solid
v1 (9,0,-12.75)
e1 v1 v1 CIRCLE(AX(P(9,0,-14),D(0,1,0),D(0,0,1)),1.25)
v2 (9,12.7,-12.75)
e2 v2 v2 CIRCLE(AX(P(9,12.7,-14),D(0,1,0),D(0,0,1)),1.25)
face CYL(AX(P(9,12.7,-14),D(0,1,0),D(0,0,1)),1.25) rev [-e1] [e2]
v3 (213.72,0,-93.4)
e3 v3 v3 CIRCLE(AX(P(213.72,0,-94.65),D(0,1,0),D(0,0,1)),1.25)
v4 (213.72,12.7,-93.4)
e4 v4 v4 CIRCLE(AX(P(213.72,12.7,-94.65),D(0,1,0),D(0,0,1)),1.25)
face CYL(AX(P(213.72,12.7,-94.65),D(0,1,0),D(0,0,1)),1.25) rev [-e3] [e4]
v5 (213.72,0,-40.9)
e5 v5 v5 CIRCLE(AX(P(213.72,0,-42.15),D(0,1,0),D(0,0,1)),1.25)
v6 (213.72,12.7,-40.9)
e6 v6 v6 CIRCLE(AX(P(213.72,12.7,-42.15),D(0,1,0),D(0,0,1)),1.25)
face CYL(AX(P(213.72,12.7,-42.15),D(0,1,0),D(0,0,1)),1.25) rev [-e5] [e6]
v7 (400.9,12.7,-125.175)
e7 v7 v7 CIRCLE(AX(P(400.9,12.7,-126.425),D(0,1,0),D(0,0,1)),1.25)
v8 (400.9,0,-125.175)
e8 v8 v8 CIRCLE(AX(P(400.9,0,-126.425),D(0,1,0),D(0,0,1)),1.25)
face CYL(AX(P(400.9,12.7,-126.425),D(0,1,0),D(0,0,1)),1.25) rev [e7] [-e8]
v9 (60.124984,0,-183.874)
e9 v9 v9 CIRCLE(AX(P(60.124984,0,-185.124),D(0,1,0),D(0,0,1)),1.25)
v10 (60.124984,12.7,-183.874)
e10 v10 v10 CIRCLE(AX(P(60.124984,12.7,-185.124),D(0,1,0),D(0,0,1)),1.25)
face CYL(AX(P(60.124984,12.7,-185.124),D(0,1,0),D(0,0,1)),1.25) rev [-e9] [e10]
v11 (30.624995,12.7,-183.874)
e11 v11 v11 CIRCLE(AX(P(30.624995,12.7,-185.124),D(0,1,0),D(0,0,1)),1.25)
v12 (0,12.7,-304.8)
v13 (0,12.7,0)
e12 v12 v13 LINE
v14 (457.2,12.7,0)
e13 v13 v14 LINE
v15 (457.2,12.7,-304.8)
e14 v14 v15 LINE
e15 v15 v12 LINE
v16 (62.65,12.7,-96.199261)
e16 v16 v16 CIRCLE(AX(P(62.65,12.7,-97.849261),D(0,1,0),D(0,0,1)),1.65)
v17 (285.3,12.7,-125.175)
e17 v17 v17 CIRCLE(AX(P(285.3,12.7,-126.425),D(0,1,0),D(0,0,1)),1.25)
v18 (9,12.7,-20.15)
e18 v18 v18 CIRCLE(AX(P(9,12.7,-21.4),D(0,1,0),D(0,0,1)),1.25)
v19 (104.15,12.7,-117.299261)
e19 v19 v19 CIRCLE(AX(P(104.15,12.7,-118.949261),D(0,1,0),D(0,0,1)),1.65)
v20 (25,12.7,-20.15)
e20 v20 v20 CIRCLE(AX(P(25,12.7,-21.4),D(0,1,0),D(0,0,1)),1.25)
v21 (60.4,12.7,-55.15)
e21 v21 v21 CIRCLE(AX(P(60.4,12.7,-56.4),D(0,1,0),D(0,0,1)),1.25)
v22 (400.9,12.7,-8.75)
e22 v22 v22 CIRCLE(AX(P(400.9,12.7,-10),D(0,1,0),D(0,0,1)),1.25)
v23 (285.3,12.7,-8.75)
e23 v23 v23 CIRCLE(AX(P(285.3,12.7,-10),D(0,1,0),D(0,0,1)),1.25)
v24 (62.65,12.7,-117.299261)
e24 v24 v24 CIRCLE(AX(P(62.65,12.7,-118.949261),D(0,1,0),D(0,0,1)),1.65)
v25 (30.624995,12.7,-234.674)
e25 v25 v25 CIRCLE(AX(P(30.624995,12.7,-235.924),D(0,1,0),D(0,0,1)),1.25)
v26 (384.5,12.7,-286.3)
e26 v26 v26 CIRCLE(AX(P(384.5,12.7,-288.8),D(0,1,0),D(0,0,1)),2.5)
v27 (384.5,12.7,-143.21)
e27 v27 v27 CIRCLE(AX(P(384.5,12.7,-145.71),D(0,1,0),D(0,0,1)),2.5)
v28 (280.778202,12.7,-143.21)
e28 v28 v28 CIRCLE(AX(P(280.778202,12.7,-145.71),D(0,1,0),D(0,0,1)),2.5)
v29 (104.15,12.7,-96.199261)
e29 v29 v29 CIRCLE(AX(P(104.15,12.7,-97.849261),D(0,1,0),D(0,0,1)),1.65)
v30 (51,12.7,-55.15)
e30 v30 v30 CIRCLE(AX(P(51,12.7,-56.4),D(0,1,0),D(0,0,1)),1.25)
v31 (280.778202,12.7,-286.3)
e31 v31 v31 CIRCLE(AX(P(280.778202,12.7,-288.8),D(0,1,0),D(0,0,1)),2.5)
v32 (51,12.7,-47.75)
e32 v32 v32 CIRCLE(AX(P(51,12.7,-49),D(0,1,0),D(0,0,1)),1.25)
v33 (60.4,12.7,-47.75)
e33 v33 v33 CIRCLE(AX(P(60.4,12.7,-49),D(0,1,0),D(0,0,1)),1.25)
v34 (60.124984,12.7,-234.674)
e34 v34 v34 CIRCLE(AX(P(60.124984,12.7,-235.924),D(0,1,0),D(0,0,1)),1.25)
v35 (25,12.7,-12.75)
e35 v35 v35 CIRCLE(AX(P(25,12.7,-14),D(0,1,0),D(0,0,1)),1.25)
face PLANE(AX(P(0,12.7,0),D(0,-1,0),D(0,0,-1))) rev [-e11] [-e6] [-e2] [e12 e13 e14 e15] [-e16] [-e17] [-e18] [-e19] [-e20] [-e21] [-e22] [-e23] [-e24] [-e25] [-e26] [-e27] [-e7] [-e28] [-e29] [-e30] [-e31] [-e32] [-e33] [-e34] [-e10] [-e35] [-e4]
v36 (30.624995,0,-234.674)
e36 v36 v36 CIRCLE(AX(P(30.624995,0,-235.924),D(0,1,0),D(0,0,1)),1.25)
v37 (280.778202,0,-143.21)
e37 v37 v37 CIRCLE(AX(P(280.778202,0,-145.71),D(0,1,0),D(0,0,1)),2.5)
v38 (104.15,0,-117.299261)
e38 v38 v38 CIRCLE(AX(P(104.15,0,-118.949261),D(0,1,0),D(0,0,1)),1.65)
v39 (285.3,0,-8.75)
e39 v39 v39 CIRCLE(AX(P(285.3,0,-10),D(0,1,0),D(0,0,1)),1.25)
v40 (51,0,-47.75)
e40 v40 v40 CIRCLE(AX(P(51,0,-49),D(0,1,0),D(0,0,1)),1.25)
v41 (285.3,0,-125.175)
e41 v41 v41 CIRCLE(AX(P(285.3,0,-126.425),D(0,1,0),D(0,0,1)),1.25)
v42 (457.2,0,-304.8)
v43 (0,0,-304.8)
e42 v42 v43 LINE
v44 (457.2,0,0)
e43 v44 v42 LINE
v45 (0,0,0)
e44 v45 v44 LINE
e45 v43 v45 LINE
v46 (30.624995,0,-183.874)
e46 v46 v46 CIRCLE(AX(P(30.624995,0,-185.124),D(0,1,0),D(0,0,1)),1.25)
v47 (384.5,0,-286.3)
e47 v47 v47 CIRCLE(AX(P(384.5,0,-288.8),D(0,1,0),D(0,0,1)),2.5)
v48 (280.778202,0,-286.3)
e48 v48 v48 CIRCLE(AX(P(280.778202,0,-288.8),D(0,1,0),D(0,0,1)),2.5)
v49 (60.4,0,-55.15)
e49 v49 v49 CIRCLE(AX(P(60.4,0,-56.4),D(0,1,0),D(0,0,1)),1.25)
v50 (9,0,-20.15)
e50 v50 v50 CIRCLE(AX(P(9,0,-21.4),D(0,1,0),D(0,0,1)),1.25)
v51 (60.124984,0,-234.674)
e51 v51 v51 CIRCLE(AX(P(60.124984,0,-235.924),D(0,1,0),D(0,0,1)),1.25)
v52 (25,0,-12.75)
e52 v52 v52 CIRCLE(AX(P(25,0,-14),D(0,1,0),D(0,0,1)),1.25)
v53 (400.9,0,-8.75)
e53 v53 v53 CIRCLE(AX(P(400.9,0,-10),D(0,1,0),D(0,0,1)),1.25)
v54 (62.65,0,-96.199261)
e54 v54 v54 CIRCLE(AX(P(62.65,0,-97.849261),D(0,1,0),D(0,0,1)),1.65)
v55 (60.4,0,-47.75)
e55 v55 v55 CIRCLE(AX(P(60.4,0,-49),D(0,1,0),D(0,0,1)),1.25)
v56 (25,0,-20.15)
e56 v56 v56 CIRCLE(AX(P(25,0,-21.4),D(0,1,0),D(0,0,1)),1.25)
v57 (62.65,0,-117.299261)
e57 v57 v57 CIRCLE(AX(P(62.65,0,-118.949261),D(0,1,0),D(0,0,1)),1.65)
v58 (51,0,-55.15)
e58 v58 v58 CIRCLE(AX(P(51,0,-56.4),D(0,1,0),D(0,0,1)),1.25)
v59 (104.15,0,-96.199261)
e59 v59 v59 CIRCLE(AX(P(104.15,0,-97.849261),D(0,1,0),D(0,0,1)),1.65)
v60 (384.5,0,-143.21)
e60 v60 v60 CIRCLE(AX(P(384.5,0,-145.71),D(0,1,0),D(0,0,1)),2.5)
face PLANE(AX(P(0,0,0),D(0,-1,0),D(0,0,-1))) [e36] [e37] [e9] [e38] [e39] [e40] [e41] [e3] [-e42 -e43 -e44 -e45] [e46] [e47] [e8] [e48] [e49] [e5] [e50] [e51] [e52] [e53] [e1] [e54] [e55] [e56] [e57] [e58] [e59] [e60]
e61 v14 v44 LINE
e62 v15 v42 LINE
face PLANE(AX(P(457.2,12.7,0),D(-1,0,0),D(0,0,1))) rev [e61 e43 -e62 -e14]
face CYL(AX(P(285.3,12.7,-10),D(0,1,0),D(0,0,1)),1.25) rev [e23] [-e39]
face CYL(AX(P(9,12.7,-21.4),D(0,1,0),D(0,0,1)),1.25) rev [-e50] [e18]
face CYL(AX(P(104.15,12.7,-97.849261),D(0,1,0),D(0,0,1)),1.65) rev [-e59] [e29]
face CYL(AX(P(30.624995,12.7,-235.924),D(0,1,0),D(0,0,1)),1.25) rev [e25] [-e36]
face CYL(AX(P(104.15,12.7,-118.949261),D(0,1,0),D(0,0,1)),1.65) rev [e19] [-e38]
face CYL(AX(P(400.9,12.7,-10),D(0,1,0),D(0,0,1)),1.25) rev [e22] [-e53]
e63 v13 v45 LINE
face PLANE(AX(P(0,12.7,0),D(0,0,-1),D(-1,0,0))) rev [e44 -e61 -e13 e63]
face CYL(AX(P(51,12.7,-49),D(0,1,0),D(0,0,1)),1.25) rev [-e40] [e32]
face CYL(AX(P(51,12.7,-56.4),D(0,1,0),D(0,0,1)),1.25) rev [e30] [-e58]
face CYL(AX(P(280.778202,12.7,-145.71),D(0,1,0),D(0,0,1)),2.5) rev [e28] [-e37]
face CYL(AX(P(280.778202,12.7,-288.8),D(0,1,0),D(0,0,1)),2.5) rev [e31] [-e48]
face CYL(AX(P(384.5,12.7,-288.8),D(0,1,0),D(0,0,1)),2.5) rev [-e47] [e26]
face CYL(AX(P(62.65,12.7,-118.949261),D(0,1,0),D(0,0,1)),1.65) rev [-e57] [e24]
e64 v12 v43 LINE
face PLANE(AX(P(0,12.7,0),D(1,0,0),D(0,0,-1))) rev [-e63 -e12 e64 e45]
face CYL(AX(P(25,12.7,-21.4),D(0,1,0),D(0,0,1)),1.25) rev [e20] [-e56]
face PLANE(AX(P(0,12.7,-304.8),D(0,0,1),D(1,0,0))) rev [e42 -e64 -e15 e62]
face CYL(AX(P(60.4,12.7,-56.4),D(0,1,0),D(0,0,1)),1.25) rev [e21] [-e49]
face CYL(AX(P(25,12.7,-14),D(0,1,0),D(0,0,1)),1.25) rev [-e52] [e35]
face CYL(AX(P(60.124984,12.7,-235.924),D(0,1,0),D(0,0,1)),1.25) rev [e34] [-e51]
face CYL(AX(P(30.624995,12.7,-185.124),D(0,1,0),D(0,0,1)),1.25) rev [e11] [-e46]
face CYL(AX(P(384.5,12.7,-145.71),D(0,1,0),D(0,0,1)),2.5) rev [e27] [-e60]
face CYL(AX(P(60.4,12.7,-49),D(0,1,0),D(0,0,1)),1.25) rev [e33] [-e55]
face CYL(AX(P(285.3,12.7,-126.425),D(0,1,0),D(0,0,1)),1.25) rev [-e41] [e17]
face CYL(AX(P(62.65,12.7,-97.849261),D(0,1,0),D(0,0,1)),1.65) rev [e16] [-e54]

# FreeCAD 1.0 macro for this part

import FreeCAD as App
import Part
import Sketcher
from FreeCAD import Vector


def add_polygon(sketch, points):
    """Adds a closed chain of lines whose ends are joined by coincident constraints."""
    first, n = sketch.GeometryCount, len(points)
    for a, b in zip(points, points[1:] + points[:1]):
        sketch.addGeometry(Part.LineSegment(App.Vector(*a, 0), App.Vector(*b, 0)), False)
    for i in range(n):
        sketch.addConstraint(Sketcher.Constraint("Coincident", first + i, 2, first + (i + 1) % n, 1))

doc = App.newDocument("Part")
params = doc.addObject("Spreadsheet::Sheet", "Params")
for row, (alias, value) in enumerate([
    ("sketch1_width", "457.2 mm"),
    ("sketch1_height", "304.8 mm"),
    ("pad1_length", "12.7 mm"),
    ("sketch2_diameter", "2.5 mm"),
    ("hole_diameter", "2.5 mm"),
    ("sketch3_diameter", "2.5 mm"),
    ("hole2_diameter", "2.5 mm"),
    ("sketch4_diameter", "3.3 mm"),
    ("hole3_diameter", "3.3 mm"),
    ("sketch5_diameter", "5 mm"),
    ("hole4_diameter", "5 mm"),
    ("sketch6_diameter", "2.5 mm"),
    ("hole5_diameter", "2.5 mm"),
    ("sketch7_diameter", "2.5 mm"),
    ("hole6_diameter", "2.5 mm"),
], start=1):
    params.set(f"A{row}", alias)
    params.set(f"B{row}", "=" + value)
    params.setAlias(f"B{row}", alias)

body = doc.addObject("PartDesign::Body", "Body")

sketch1 = body.newObject("Sketcher::SketchObject", "Sketch")
sketch1.AttachmentSupport = (doc.getObject("XZ_Plane"), [""])
sketch1.MapMode = "FlatFace"
add_polygon(sketch1, [(0, -304.8), (0, 0), (457.2, 0), (457.2, -304.8)])
sketch1.addConstraint([
    Sketcher.Constraint("Vertical", 0),
    Sketcher.Constraint("Horizontal", 1),
    Sketcher.Constraint("Vertical", 2),
    Sketcher.Constraint("Horizontal", 3),
    Sketcher.Constraint("Coincident", 0, 2, -1, 1),
    Sketcher.Constraint("DistanceX", 1, 1, 1, 2, 457.2),
    Sketcher.Constraint("DistanceY", 0, 1, 0, 2, 304.8),
])
sketch1.setExpression("Constraints[9]", "Params.sketch1_width")
sketch1.setExpression("Constraints[10]", "Params.sketch1_height")
pad1 = body.newObject("PartDesign::Pad", "Pad")
pad1.Profile = sketch1
pad1.setExpression("Length", "Params.pad1_length")
pad1.Reversed = True

sketch2 = body.newObject("Sketcher::SketchObject", "Sketch001")
sketch2.AttachmentSupport = (doc.getObject("XZ_Plane"), [""])
sketch2.MapMode = "FlatFace"
sketch2.AttachmentOffset = App.Placement(Vector(0, 0, -12.7), App.Rotation())
sketch2.addGeometry([
    Part.Circle(Vector(9, -21.4, 0), Vector(0, 0, 1), 1.25),
    Part.Circle(Vector(25, -21.4, 0), Vector(0, 0, 1), 1.25),
    Part.Circle(Vector(25, -14, 0), Vector(0, 0, 1), 1.25),
    Part.Circle(Vector(9, -14, 0), Vector(0, 0, 1), 1.25),
    Part.Circle(Vector(51, -56.4, 0), Vector(0, 0, 1), 1.25),
    Part.Circle(Vector(60.4, -56.4, 0), Vector(0, 0, 1), 1.25),
    Part.Circle(Vector(60.4, -49, 0), Vector(0, 0, 1), 1.25),
    Part.Circle(Vector(51, -49, 0), Vector(0, 0, 1), 1.25),
], False)
sketch2.addConstraint([
    Sketcher.Constraint("Equal", 0, 1),
    Sketcher.Constraint("Equal", 1, 2),
    Sketcher.Constraint("Equal", 2, 3),
    Sketcher.Constraint("Equal", 3, 4),
    Sketcher.Constraint("Equal", 4, 5),
    Sketcher.Constraint("Equal", 5, 6),
    Sketcher.Constraint("Equal", 6, 7),
    Sketcher.Constraint("Horizontal", 0, 3, 1, 3),
    Sketcher.Constraint("Horizontal", 2, 3, 3, 3),
    Sketcher.Constraint("Horizontal", 4, 3, 5, 3),
    Sketcher.Constraint("Horizontal", 6, 3, 7, 3),
    Sketcher.Constraint("Vertical", 1, 3, 2, 3),
    Sketcher.Constraint("Vertical", 0, 3, 3, 3),
    Sketcher.Constraint("Vertical", 5, 3, 6, 3),
    Sketcher.Constraint("Vertical", 4, 3, 7, 3),
    Sketcher.Constraint("Diameter", 0, 2.5),
    Sketcher.Constraint("DistanceX", -1, 1, 0, 3, 9.0),
    Sketcher.Constraint("DistanceX", -1, 1, 1, 3, 25.0),
    Sketcher.Constraint("DistanceY", 2, 3, -1, 1, 14.0),
    Sketcher.Constraint("DistanceX", -1, 1, 4, 3, 51.0),
    Sketcher.Constraint("DistanceY", 6, 3, -1, 1, 49.0),
    Sketcher.Constraint("DistanceY", 4, 3, 1, 3, 35.0),
    Sketcher.Constraint("DistanceY", 0, 3, -1, 1, 21.4),
    Sketcher.Constraint("DistanceX", -1, 1, 5, 3, 60.4),
])
sketch2.setExpression("Constraints[15]", "Params.sketch2_diameter")
doc.recompute()
hole = body.newObject("PartDesign::Hole", "Hole")
hole.Profile = sketch2
hole.ThreadType = "None"
hole.setExpression("Diameter", "Params.hole_diameter")
hole.DepthType = "ThroughAll"
hole.Reversed = True

sketch3 = body.newObject("Sketcher::SketchObject", "Sketch002")
sketch3.AttachmentSupport = (doc.getObject("XZ_Plane"), [""])
sketch3.MapMode = "FlatFace"
sketch3.AttachmentOffset = App.Placement(Vector(0, 0, -12.7), App.Rotation())
sketch3.addGeometry([
    Part.Circle(Vector(60.124984, -235.924, 0), Vector(0, 0, 1), 1.25),
    Part.Circle(Vector(60.124984, -185.124, 0), Vector(0, 0, 1), 1.25),
    Part.Circle(Vector(30.624995, -185.124, 0), Vector(0, 0, 1), 1.25),
    Part.Circle(Vector(30.624995, -235.924, 0), Vector(0, 0, 1), 1.25),
], False)
sketch3.addConstraint([
    Sketcher.Constraint("Equal", 0, 1),
    Sketcher.Constraint("Equal", 1, 2),
    Sketcher.Constraint("Equal", 2, 3),
    Sketcher.Constraint("Horizontal", 1, 3, 2, 3),
    Sketcher.Constraint("Horizontal", 0, 3, 3, 3),
    Sketcher.Constraint("Vertical", 0, 3, 1, 3),
    Sketcher.Constraint("Vertical", 2, 3, 3, 3),
    Sketcher.Constraint("Diameter", 0, 2.5),
    Sketcher.Constraint("DistanceY", 0, 3, 1, 3, 50.8),
    Sketcher.Constraint("DistanceY", 0, 3, -1, 1, 235.924),
    Sketcher.Constraint("DistanceX", 2, 3, 1, 3, 29.49999),
    Sketcher.Constraint("DistanceX", -1, 1, 0, 3, 60.124984),
])
sketch3.setExpression("Constraints[7]", "Params.sketch3_diameter")
doc.recompute()
hole2 = body.newObject("PartDesign::Hole", "Hole001")
hole2.Profile = sketch3
hole2.ThreadType = "None"
hole2.setExpression("Diameter", "Params.hole2_diameter")
hole2.DepthType = "ThroughAll"
hole2.Reversed = True

sketch4 = body.newObject("Sketcher::SketchObject", "Sketch003")
sketch4.AttachmentSupport = (doc.getObject("XZ_Plane"), [""])
sketch4.MapMode = "FlatFace"
sketch4.AttachmentOffset = App.Placement(Vector(0, 0, -12.7), App.Rotation())
sketch4.addGeometry([
    Part.Circle(Vector(62.65, -97.849261, 0), Vector(0, 0, 1), 1.65),
    Part.Circle(Vector(62.65, -118.949261, 0), Vector(0, 0, 1), 1.65),
    Part.Circle(Vector(104.15, -118.949261, 0), Vector(0, 0, 1), 1.65),
    Part.Circle(Vector(104.15, -97.849261, 0), Vector(0, 0, 1), 1.65),
], False)
sketch4.addConstraint([
    Sketcher.Constraint("Equal", 0, 1),
    Sketcher.Constraint("Equal", 1, 2),
    Sketcher.Constraint("Equal", 2, 3),
    Sketcher.Constraint("Horizontal", 1, 3, 2, 3),
    Sketcher.Constraint("Horizontal", 0, 3, 3, 3),
    Sketcher.Constraint("Vertical", 0, 3, 1, 3),
    Sketcher.Constraint("Vertical", 2, 3, 3, 3),
    Sketcher.Constraint("Diameter", 0, 3.3),
    Sketcher.Constraint("DistanceY", 1, 3, 0, 3, 21.1),
    Sketcher.Constraint("DistanceX", 1, 3, 2, 3, 41.5),
    Sketcher.Constraint("DistanceX", -1, 1, 0, 3, 62.65),
    Sketcher.Constraint("DistanceY", 0, 3, -1, 1, 97.849261),
])
sketch4.setExpression("Constraints[7]", "Params.sketch4_diameter")
doc.recompute()
hole3 = body.newObject("PartDesign::Hole", "Hole002")
hole3.Profile = sketch4
hole3.ThreadType = "None"
hole3.setExpression("Diameter", "Params.hole3_diameter")
hole3.DepthType = "ThroughAll"
hole3.Reversed = True

sketch5 = body.newObject("Sketcher::SketchObject", "Sketch004")
sketch5.AttachmentSupport = (doc.getObject("XZ_Plane"), [""])
sketch5.MapMode = "FlatFace"
sketch5.AttachmentOffset = App.Placement(Vector(0, 0, -12.7), App.Rotation())
sketch5.addGeometry([
    Part.Circle(Vector(384.5, -288.8, 0), Vector(0, 0, 1), 2.5),
    Part.Circle(Vector(280.778202, -288.8, 0), Vector(0, 0, 1), 2.5),
    Part.Circle(Vector(280.778202, -145.71, 0), Vector(0, 0, 1), 2.5),
    Part.Circle(Vector(384.5, -145.71, 0), Vector(0, 0, 1), 2.5),
], False)
sketch5.addConstraint([
    Sketcher.Constraint("Equal", 0, 1),
    Sketcher.Constraint("Equal", 1, 2),
    Sketcher.Constraint("Equal", 2, 3),
    Sketcher.Constraint("Horizontal", 0, 3, 1, 3),
    Sketcher.Constraint("Horizontal", 2, 3, 3, 3),
    Sketcher.Constraint("Vertical", 1, 3, 2, 3),
    Sketcher.Constraint("Vertical", 0, 3, 3, 3),
    Sketcher.Constraint("Diameter", 0, 5.0),
    Sketcher.Constraint("DistanceX", -1, 1, 0, 3, 384.5),
    Sketcher.Constraint("DistanceY", 0, 3, -1, 1, 288.8),
    Sketcher.Constraint("DistanceY", 2, 3, -1, 1, 145.71),
    Sketcher.Constraint("DistanceX", -1, 1, 1, 3, 280.778202),
])
sketch5.setExpression("Constraints[7]", "Params.sketch5_diameter")
doc.recompute()
hole4 = body.newObject("PartDesign::Hole", "Hole003")
hole4.Profile = sketch5
hole4.ThreadType = "None"
hole4.setExpression("Diameter", "Params.hole4_diameter")
hole4.DepthType = "ThroughAll"
hole4.Reversed = True

sketch6 = body.newObject("Sketcher::SketchObject", "Sketch005")
sketch6.AttachmentSupport = (doc.getObject("XZ_Plane"), [""])
sketch6.MapMode = "FlatFace"
sketch6.AttachmentOffset = App.Placement(Vector(0, 0, -12.7), App.Rotation())
sketch6.addGeometry([
    Part.Circle(Vector(213.72, -94.65, 0), Vector(0, 0, 1), 1.25),
    Part.Circle(Vector(213.72, -42.15, 0), Vector(0, 0, 1), 1.25),
], False)
sketch6.addConstraint([
    Sketcher.Constraint("Equal", 0, 1),
    Sketcher.Constraint("Vertical", 0, 3, 1, 3),
    Sketcher.Constraint("Diameter", 0, 2.5),
    Sketcher.Constraint("DistanceY", 0, 3, 1, 3, 52.5),
    Sketcher.Constraint("DistanceX", -1, 1, 0, 3, 213.72),
    Sketcher.Constraint("DistanceY", 0, 3, -1, 1, 94.65),
])
sketch6.setExpression("Constraints[2]", "Params.sketch6_diameter")
doc.recompute()
hole5 = body.newObject("PartDesign::Hole", "Hole004")
hole5.Profile = sketch6
hole5.ThreadType = "None"
hole5.setExpression("Diameter", "Params.hole5_diameter")
hole5.DepthType = "ThroughAll"
hole5.Reversed = True

sketch7 = body.newObject("Sketcher::SketchObject", "Sketch006")
sketch7.AttachmentSupport = (doc.getObject("XZ_Plane"), [""])
sketch7.MapMode = "FlatFace"
sketch7.AttachmentOffset = App.Placement(Vector(0, 0, -12.7), App.Rotation())
sketch7.addGeometry([
    Part.Circle(Vector(400.9, -10, 0), Vector(0, 0, 1), 1.25),
    Part.Circle(Vector(285.3, -10, 0), Vector(0, 0, 1), 1.25),
    Part.Circle(Vector(285.3, -126.425, 0), Vector(0, 0, 1), 1.25),
    Part.Circle(Vector(400.9, -126.425, 0), Vector(0, 0, 1), 1.25),
], False)
sketch7.addConstraint([
    Sketcher.Constraint("Equal", 0, 1),
    Sketcher.Constraint("Equal", 1, 2),
    Sketcher.Constraint("Equal", 2, 3),
    Sketcher.Constraint("Horizontal", 0, 3, 1, 3),
    Sketcher.Constraint("Horizontal", 2, 3, 3, 3),
    Sketcher.Constraint("Vertical", 1, 3, 2, 3),
    Sketcher.Constraint("Vertical", 0, 3, 3, 3),
    Sketcher.Constraint("Diameter", 0, 2.5),
    Sketcher.Constraint("DistanceY", 0, 3, -1, 1, 10.0),
    Sketcher.Constraint("DistanceX", -1, 1, 0, 3, 400.9),
    Sketcher.Constraint("DistanceX", -1, 1, 1, 3, 285.3),
    Sketcher.Constraint("DistanceY", 2, 3, -1, 1, 126.425),
])
sketch7.setExpression("Constraints[7]", "Params.sketch7_diameter")
doc.recompute()
hole6 = body.newObject("PartDesign::Hole", "Hole005")
hole6.Profile = sketch7
hole6.ThreadType = "None"
hole6.setExpression("Diameter", "Params.hole6_diameter")
hole6.DepthType = "ThroughAll"
hole6.Reversed = True

doc.recompute()
